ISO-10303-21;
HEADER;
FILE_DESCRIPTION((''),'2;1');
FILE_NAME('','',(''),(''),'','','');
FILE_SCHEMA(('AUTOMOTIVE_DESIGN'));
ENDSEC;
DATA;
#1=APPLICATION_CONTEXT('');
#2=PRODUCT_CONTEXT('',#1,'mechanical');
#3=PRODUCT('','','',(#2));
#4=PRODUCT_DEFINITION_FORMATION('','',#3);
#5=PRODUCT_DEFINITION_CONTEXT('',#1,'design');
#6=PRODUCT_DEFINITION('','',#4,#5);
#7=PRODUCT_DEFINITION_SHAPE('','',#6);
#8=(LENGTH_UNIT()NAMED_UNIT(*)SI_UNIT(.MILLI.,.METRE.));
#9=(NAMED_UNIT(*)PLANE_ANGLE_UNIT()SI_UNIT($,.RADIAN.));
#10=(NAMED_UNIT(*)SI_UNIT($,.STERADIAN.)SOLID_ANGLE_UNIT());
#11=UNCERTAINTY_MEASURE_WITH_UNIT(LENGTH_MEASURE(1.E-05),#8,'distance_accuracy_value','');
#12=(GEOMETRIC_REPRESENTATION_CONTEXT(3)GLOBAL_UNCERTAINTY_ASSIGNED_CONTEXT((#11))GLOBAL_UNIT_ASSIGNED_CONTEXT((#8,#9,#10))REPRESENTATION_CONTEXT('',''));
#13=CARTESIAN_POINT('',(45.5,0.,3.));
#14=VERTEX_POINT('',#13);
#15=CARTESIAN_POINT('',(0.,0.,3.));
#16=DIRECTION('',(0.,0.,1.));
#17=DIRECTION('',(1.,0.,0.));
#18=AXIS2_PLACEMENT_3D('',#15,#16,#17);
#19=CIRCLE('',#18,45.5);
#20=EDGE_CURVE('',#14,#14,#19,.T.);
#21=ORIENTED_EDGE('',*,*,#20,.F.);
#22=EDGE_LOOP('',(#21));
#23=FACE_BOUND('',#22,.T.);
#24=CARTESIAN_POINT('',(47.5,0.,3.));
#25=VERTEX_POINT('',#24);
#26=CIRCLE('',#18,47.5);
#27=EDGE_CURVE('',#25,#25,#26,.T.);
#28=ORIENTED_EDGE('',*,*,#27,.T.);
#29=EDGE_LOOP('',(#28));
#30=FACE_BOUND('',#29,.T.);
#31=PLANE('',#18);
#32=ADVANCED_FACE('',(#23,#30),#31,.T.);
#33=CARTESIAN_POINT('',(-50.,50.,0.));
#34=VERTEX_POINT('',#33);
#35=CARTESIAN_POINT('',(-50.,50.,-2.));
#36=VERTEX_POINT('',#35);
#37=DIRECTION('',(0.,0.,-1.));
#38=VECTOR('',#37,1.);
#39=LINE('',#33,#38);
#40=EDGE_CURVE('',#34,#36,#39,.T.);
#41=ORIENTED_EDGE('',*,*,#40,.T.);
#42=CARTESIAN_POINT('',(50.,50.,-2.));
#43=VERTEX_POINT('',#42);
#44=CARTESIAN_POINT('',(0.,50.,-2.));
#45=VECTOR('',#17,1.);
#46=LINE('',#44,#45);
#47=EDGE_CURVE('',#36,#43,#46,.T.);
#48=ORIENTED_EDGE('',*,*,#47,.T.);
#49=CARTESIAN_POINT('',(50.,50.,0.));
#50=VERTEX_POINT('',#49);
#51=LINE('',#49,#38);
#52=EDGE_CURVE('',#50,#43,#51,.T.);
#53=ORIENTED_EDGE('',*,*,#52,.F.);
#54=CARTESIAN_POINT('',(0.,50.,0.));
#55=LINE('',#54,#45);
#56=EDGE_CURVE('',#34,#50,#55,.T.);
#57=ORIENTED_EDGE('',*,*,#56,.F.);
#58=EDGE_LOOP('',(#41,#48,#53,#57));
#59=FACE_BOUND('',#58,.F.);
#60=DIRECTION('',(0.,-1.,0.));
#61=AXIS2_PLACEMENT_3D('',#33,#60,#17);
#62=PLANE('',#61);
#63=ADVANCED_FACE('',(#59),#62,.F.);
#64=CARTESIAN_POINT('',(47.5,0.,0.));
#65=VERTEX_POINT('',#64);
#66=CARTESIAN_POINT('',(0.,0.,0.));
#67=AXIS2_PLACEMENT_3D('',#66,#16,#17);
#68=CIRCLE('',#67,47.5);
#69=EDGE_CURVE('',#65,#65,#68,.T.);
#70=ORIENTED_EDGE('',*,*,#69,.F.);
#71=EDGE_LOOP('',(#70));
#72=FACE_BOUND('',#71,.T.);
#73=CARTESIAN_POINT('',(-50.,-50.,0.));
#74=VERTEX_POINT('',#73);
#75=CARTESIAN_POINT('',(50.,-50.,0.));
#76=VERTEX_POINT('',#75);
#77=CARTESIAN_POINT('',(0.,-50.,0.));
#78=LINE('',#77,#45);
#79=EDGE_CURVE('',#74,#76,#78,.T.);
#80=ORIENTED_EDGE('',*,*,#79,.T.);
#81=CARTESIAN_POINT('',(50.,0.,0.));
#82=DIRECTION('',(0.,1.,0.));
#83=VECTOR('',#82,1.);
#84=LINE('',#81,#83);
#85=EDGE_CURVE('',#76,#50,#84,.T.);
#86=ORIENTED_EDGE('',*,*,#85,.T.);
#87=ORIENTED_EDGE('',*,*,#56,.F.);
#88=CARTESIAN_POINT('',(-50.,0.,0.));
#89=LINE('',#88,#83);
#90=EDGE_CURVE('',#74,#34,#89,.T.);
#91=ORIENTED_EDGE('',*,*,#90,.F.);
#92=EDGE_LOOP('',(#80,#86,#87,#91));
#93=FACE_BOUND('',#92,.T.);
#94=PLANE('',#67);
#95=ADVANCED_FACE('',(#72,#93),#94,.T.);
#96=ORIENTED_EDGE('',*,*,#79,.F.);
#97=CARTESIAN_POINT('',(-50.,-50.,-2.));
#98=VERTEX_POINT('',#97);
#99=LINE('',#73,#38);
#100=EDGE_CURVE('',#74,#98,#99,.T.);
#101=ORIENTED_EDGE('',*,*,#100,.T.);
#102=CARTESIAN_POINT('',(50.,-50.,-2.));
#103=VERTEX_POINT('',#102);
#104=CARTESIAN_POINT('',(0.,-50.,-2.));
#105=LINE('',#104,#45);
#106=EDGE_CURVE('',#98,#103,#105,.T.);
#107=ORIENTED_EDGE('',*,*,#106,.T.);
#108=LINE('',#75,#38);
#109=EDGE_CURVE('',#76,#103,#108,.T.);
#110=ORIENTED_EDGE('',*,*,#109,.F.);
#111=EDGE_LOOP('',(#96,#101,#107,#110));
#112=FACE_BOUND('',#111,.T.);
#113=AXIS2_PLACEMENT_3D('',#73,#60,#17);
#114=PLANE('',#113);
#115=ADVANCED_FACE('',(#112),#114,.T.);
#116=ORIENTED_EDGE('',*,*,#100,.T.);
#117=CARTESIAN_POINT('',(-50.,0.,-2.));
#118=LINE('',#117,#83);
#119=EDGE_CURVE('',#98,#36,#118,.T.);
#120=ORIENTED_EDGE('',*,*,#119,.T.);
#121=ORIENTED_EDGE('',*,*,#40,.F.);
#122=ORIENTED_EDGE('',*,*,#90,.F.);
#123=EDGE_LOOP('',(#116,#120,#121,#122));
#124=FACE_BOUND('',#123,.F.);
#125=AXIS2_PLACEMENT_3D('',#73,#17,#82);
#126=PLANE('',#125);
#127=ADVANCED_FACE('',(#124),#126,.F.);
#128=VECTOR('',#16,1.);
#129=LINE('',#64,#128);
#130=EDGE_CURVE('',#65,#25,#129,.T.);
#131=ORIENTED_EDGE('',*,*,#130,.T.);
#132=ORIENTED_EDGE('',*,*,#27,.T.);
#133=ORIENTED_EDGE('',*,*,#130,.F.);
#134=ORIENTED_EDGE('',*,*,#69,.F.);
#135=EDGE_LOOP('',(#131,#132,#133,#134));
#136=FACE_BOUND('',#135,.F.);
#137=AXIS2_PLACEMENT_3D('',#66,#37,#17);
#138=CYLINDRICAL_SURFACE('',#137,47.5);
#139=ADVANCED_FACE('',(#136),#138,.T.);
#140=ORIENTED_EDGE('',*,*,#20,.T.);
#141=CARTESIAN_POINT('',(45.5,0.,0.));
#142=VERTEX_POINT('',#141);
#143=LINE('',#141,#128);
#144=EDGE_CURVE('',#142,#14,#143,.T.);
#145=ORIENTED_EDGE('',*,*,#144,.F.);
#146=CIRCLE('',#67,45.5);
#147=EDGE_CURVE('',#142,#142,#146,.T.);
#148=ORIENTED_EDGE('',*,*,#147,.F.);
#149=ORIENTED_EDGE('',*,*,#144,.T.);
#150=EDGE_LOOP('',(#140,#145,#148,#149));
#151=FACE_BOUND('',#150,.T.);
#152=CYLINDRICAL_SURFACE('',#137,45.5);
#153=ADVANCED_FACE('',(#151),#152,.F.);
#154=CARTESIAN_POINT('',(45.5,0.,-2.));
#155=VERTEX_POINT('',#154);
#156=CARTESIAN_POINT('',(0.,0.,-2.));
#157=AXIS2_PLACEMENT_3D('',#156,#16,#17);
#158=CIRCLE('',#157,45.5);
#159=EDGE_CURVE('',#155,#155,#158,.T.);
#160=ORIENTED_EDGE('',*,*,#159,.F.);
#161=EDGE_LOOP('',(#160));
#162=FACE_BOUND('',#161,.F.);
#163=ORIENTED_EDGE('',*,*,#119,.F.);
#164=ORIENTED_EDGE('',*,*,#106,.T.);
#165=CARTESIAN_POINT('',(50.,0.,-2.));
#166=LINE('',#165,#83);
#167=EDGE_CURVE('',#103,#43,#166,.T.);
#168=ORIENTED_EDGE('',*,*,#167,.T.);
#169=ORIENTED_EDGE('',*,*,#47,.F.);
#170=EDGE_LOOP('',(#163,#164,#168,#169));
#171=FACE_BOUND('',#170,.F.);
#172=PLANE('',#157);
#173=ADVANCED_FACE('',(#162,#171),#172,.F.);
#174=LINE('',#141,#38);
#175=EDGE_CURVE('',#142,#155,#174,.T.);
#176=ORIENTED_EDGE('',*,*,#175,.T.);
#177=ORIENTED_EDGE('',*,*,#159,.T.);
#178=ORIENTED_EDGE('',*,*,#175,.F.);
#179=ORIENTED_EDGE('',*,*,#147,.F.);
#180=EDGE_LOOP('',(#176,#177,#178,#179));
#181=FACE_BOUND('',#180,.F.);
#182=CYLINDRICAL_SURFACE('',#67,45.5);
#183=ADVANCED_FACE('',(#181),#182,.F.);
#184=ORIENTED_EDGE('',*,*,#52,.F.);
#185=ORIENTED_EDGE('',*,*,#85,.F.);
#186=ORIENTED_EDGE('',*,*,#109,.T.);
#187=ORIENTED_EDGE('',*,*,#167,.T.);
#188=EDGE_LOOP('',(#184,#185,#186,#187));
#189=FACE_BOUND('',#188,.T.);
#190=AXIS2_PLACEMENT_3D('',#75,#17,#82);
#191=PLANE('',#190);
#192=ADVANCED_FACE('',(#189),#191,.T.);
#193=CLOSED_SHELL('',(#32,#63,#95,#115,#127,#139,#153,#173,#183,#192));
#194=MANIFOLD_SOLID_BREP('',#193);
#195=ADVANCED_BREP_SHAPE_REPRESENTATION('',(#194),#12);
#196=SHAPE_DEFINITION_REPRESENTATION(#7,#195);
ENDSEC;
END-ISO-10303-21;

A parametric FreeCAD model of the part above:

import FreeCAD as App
import Part
import Sketcher

V = App.Vector

doc = App.newDocument("Part")
body = doc.addObject("PartDesign::Body", "Body")

# Sketch on XY plane
sketch1 = body.newObject("Sketcher::SketchObject", "Sketch")
sketch1.AttachmentSupport = (doc.getObject("XY_Plane"), [""])
sketch1.MapMode = "FlatFace"
sketch1.addGeometry([
    Part.Circle(V(0, 0, 0), V(0, 0, 1), 47.5),
    Part.Circle(V(0, 0, 0), V(0, 0, 1), 45.5),
], False)
sketch1.addConstraint([
    Sketcher.Constraint("Coincident", 0, 3, -1, 1),
    Sketcher.Constraint("Coincident", 1, 3, -1, 1),
    Sketcher.Constraint("Diameter", 0, 95.0),
    Sketcher.Constraint("Diameter", 1, 91.0),
])
pad1 = body.newObject("PartDesign::Pad", "Pad")
pad1.Profile = sketch1
pad1.Length = 3

# Sketch on XY plane
sketch2 = body.newObject("Sketcher::SketchObject", "Sketch001")
sketch2.AttachmentSupport = (doc.getObject("XY_Plane"), [""])
sketch2.MapMode = "FlatFace"
sketch2.addGeometry([
    Part.LineSegment(V(-50, 50, 0), V(-50, -50, 0)),  # 0
    Part.LineSegment(V(-50, -50, 0), V(50, -50, 0)),  # 1
    Part.LineSegment(V(50, -50, 0), V(50, 50, 0)),  # 2
    Part.LineSegment(V(50, 50, 0), V(-50, 50, 0)),  # 3
    Part.Circle(V(0, 0, 0), V(0, 0, 1), 45.5),  # 4
], False)
sketch2.addConstraint([
    Sketcher.Constraint("Coincident", 0, 2, 1, 1),
    Sketcher.Constraint("Coincident", 1, 2, 2, 1),
    Sketcher.Constraint("Coincident", 2, 2, 3, 1),
    Sketcher.Constraint("Coincident", 3, 2, 0, 1),
    Sketcher.Constraint("Vertical", 0),
    Sketcher.Constraint("Horizontal", 1),
    Sketcher.Constraint("Vertical", 2),
    Sketcher.Constraint("Horizontal", 3),
    Sketcher.Constraint("Coincident", 4, 3, -1, 1),
    Sketcher.Constraint("Symmetric", 0, 2, 2, 2, -1, 1),
    Sketcher.Constraint("Equal", 3, 0),
    Sketcher.Constraint("Diameter", 4, 91.0),
    Sketcher.Constraint("DistanceX", 1, 1, 1, 2, 100.0),
])
pad2 = body.newObject("PartDesign::Pad", "Pad001")
pad2.Profile = sketch2
pad2.Length = 2
pad2.Reversed = True

doc.recompute()
